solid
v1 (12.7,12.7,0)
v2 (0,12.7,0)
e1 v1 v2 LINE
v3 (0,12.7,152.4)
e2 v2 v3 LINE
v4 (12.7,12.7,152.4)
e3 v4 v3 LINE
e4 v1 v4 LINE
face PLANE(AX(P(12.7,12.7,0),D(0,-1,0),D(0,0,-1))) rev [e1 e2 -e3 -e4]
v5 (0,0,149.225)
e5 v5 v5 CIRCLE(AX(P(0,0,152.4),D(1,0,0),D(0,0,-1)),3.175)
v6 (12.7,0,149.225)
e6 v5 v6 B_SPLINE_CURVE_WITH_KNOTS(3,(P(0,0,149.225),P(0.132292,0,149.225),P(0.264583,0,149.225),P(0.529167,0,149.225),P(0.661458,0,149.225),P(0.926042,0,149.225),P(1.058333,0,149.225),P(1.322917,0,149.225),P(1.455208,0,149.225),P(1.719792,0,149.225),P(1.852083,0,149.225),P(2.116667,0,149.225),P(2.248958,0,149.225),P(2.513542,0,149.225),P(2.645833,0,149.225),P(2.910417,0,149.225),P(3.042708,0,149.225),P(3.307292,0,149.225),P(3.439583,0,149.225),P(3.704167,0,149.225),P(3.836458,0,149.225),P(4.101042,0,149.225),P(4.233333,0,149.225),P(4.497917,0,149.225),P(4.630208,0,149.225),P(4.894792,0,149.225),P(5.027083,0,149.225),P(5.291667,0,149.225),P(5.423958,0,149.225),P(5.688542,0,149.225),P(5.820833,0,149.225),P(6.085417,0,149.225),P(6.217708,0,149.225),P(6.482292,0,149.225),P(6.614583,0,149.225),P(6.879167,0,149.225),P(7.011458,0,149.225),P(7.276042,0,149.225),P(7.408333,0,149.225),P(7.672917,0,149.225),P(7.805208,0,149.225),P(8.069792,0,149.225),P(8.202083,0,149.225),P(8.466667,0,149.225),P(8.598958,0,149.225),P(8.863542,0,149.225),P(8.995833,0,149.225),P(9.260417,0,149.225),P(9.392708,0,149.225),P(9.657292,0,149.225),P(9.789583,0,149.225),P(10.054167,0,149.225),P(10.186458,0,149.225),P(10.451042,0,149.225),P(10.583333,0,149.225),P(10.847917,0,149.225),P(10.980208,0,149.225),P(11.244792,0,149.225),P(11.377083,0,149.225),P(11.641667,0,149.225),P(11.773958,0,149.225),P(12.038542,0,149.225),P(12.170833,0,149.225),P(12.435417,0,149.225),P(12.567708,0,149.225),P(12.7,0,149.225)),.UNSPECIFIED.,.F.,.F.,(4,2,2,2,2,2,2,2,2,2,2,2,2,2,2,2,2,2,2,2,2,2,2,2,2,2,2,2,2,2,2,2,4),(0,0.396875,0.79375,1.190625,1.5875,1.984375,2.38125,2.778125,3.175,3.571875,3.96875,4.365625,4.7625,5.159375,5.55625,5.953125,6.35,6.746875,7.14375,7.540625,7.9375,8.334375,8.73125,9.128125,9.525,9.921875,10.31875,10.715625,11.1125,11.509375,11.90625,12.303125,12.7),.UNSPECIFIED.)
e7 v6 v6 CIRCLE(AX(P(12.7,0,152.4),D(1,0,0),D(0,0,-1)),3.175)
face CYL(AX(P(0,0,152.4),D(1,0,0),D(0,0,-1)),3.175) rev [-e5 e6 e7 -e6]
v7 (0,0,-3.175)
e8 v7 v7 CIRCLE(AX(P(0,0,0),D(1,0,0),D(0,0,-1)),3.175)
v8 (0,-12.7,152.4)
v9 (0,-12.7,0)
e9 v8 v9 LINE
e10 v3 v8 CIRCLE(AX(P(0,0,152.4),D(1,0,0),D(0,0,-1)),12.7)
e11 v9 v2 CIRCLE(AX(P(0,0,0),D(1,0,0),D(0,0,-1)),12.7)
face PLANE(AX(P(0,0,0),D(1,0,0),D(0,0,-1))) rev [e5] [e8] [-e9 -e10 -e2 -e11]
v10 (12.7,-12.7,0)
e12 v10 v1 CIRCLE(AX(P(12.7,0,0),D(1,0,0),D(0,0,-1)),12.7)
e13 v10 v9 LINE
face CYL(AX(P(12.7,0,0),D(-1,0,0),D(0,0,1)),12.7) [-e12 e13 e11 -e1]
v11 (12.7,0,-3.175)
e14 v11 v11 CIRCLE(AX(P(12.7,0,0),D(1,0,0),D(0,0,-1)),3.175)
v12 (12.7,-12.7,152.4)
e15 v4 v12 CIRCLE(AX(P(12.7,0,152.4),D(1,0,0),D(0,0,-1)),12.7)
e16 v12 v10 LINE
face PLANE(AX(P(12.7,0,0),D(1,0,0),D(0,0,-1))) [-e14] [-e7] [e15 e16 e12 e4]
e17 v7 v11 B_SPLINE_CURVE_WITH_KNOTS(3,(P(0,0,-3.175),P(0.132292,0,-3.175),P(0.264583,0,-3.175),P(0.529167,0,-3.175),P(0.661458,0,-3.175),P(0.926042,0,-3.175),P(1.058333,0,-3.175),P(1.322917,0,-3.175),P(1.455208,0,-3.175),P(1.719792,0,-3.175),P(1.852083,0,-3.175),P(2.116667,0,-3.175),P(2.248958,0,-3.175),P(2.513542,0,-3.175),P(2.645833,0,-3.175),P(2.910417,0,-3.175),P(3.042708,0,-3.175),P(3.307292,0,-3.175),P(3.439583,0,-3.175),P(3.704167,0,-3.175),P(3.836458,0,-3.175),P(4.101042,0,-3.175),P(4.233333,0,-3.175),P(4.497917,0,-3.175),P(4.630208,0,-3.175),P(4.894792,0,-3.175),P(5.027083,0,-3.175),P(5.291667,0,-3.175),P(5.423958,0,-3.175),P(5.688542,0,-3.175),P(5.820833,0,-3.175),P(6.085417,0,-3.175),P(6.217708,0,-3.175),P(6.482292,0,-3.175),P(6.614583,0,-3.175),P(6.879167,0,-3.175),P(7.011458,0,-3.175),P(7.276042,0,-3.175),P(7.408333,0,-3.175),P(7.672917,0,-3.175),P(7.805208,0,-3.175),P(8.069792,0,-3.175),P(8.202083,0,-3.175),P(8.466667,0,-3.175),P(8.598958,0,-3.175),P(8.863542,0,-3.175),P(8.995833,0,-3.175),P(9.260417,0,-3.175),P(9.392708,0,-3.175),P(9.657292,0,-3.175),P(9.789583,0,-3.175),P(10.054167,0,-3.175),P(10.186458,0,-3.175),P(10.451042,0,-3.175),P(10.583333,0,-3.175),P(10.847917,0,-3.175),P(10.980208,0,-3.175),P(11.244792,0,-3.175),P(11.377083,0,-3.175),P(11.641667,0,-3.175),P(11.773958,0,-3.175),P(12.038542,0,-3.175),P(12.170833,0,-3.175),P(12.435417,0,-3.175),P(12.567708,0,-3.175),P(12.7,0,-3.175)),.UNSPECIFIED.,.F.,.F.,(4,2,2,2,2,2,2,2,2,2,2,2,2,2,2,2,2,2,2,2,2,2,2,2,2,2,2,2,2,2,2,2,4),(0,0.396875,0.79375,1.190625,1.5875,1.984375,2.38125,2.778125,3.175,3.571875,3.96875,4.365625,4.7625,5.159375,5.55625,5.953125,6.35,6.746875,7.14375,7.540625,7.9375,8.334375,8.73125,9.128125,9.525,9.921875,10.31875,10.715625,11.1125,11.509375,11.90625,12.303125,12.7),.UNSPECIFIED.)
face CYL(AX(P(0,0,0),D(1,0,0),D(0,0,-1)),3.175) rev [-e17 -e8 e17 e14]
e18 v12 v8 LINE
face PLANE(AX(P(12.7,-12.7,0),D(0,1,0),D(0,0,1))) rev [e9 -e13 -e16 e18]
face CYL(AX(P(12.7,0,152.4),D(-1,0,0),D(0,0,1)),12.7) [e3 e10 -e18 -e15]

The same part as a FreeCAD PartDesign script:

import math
import FreeCAD as App
import Part
import Sketcher
Q = App.Units.Quantity

doc = App.newDocument("Part")
body = doc.addObject("PartDesign::Body", "Body")

sketch1 = doc.addObject("Sketcher::SketchObject", "Sketch")
body.addObject(sketch1)
sketch1.AttachmentSupport = (doc.YZ_Plane, [""])
sketch1.MapMode = "FlatFace"
sketch1.addGeometry([
    Part.LineSegment(App.Vector(-13, 152, 0), App.Vector(-13, 0, 0)),
    Part.ArcOfCircle(Part.Circle(App.Vector(0, 0, 0), App.Vector(0, 0, 1), 13), math.radians(180), math.radians(360)),
    Part.LineSegment(App.Vector(13, 0, 0), App.Vector(13, 152, 0)),
    Part.ArcOfCircle(Part.Circle(App.Vector(0, 152, 0), App.Vector(0, 0, 1), 13), math.radians(0), math.radians(180)),
], False)
sketch1.addConstraint([
    Sketcher.Constraint("Tangent", 0, 2, 1, 1),
    Sketcher.Constraint("Tangent", 1, 2, 2, 1),
    Sketcher.Constraint("Tangent", 2, 2, 3, 1),
    Sketcher.Constraint("Tangent", 3, 2, 0, 1),
    Sketcher.Constraint("Vertical", 0),
    Sketcher.Constraint("Vertical", 2),
    Sketcher.Constraint("Coincident", 1, 3, -1, 1),
    Sketcher.Constraint("Radius", 1, Q("0.5 in")),
    Sketcher.Constraint("DistanceY", 0, 2, 0, 1, Q("6 in")),
])
pad1 = doc.addObject("PartDesign::Pad", "Pad")
body.addObject(pad1)
pad1.Profile = sketch1
pad1.Length = Q("0.5 in")

sketch2 = doc.addObject("Sketcher::SketchObject", "Sketch001")
body.addObject(sketch2)
sketch2.AttachmentSupport = (doc.YZ_Plane, [""])
sketch2.MapMode = "FlatFace"
sketch2.AttachmentOffset = App.Placement(App.Vector(0, 0, 0.5 * 25.4), App.Rotation())
sketch2.addGeometry([
    Part.Circle(App.Vector(0, 0, 0), App.Vector(0, 0, 1), 3.2),
    Part.Circle(App.Vector(0, 152.4, 0), App.Vector(0, 0, 1), 3.2),
], False)
sketch2.addConstraint([
    Sketcher.Constraint("Coincident", 0, 3, -1, 1),
    Sketcher.Constraint("Equal", 0, 1),
    Sketcher.Constraint("PointOnObject", 1, 3, -2),
    Sketcher.Constraint("Diameter", 0, Q("0.25 in")),
    Sketcher.Constraint("DistanceY", -1, 1, 1, 3, Q("6 in")),
])
pocket1 = doc.addObject("PartDesign::Pocket", "Pocket")
body.addObject(pocket1)
pocket1.Profile = sketch2
pocket1.Length = Q("0.5 in")

doc.recompute()
